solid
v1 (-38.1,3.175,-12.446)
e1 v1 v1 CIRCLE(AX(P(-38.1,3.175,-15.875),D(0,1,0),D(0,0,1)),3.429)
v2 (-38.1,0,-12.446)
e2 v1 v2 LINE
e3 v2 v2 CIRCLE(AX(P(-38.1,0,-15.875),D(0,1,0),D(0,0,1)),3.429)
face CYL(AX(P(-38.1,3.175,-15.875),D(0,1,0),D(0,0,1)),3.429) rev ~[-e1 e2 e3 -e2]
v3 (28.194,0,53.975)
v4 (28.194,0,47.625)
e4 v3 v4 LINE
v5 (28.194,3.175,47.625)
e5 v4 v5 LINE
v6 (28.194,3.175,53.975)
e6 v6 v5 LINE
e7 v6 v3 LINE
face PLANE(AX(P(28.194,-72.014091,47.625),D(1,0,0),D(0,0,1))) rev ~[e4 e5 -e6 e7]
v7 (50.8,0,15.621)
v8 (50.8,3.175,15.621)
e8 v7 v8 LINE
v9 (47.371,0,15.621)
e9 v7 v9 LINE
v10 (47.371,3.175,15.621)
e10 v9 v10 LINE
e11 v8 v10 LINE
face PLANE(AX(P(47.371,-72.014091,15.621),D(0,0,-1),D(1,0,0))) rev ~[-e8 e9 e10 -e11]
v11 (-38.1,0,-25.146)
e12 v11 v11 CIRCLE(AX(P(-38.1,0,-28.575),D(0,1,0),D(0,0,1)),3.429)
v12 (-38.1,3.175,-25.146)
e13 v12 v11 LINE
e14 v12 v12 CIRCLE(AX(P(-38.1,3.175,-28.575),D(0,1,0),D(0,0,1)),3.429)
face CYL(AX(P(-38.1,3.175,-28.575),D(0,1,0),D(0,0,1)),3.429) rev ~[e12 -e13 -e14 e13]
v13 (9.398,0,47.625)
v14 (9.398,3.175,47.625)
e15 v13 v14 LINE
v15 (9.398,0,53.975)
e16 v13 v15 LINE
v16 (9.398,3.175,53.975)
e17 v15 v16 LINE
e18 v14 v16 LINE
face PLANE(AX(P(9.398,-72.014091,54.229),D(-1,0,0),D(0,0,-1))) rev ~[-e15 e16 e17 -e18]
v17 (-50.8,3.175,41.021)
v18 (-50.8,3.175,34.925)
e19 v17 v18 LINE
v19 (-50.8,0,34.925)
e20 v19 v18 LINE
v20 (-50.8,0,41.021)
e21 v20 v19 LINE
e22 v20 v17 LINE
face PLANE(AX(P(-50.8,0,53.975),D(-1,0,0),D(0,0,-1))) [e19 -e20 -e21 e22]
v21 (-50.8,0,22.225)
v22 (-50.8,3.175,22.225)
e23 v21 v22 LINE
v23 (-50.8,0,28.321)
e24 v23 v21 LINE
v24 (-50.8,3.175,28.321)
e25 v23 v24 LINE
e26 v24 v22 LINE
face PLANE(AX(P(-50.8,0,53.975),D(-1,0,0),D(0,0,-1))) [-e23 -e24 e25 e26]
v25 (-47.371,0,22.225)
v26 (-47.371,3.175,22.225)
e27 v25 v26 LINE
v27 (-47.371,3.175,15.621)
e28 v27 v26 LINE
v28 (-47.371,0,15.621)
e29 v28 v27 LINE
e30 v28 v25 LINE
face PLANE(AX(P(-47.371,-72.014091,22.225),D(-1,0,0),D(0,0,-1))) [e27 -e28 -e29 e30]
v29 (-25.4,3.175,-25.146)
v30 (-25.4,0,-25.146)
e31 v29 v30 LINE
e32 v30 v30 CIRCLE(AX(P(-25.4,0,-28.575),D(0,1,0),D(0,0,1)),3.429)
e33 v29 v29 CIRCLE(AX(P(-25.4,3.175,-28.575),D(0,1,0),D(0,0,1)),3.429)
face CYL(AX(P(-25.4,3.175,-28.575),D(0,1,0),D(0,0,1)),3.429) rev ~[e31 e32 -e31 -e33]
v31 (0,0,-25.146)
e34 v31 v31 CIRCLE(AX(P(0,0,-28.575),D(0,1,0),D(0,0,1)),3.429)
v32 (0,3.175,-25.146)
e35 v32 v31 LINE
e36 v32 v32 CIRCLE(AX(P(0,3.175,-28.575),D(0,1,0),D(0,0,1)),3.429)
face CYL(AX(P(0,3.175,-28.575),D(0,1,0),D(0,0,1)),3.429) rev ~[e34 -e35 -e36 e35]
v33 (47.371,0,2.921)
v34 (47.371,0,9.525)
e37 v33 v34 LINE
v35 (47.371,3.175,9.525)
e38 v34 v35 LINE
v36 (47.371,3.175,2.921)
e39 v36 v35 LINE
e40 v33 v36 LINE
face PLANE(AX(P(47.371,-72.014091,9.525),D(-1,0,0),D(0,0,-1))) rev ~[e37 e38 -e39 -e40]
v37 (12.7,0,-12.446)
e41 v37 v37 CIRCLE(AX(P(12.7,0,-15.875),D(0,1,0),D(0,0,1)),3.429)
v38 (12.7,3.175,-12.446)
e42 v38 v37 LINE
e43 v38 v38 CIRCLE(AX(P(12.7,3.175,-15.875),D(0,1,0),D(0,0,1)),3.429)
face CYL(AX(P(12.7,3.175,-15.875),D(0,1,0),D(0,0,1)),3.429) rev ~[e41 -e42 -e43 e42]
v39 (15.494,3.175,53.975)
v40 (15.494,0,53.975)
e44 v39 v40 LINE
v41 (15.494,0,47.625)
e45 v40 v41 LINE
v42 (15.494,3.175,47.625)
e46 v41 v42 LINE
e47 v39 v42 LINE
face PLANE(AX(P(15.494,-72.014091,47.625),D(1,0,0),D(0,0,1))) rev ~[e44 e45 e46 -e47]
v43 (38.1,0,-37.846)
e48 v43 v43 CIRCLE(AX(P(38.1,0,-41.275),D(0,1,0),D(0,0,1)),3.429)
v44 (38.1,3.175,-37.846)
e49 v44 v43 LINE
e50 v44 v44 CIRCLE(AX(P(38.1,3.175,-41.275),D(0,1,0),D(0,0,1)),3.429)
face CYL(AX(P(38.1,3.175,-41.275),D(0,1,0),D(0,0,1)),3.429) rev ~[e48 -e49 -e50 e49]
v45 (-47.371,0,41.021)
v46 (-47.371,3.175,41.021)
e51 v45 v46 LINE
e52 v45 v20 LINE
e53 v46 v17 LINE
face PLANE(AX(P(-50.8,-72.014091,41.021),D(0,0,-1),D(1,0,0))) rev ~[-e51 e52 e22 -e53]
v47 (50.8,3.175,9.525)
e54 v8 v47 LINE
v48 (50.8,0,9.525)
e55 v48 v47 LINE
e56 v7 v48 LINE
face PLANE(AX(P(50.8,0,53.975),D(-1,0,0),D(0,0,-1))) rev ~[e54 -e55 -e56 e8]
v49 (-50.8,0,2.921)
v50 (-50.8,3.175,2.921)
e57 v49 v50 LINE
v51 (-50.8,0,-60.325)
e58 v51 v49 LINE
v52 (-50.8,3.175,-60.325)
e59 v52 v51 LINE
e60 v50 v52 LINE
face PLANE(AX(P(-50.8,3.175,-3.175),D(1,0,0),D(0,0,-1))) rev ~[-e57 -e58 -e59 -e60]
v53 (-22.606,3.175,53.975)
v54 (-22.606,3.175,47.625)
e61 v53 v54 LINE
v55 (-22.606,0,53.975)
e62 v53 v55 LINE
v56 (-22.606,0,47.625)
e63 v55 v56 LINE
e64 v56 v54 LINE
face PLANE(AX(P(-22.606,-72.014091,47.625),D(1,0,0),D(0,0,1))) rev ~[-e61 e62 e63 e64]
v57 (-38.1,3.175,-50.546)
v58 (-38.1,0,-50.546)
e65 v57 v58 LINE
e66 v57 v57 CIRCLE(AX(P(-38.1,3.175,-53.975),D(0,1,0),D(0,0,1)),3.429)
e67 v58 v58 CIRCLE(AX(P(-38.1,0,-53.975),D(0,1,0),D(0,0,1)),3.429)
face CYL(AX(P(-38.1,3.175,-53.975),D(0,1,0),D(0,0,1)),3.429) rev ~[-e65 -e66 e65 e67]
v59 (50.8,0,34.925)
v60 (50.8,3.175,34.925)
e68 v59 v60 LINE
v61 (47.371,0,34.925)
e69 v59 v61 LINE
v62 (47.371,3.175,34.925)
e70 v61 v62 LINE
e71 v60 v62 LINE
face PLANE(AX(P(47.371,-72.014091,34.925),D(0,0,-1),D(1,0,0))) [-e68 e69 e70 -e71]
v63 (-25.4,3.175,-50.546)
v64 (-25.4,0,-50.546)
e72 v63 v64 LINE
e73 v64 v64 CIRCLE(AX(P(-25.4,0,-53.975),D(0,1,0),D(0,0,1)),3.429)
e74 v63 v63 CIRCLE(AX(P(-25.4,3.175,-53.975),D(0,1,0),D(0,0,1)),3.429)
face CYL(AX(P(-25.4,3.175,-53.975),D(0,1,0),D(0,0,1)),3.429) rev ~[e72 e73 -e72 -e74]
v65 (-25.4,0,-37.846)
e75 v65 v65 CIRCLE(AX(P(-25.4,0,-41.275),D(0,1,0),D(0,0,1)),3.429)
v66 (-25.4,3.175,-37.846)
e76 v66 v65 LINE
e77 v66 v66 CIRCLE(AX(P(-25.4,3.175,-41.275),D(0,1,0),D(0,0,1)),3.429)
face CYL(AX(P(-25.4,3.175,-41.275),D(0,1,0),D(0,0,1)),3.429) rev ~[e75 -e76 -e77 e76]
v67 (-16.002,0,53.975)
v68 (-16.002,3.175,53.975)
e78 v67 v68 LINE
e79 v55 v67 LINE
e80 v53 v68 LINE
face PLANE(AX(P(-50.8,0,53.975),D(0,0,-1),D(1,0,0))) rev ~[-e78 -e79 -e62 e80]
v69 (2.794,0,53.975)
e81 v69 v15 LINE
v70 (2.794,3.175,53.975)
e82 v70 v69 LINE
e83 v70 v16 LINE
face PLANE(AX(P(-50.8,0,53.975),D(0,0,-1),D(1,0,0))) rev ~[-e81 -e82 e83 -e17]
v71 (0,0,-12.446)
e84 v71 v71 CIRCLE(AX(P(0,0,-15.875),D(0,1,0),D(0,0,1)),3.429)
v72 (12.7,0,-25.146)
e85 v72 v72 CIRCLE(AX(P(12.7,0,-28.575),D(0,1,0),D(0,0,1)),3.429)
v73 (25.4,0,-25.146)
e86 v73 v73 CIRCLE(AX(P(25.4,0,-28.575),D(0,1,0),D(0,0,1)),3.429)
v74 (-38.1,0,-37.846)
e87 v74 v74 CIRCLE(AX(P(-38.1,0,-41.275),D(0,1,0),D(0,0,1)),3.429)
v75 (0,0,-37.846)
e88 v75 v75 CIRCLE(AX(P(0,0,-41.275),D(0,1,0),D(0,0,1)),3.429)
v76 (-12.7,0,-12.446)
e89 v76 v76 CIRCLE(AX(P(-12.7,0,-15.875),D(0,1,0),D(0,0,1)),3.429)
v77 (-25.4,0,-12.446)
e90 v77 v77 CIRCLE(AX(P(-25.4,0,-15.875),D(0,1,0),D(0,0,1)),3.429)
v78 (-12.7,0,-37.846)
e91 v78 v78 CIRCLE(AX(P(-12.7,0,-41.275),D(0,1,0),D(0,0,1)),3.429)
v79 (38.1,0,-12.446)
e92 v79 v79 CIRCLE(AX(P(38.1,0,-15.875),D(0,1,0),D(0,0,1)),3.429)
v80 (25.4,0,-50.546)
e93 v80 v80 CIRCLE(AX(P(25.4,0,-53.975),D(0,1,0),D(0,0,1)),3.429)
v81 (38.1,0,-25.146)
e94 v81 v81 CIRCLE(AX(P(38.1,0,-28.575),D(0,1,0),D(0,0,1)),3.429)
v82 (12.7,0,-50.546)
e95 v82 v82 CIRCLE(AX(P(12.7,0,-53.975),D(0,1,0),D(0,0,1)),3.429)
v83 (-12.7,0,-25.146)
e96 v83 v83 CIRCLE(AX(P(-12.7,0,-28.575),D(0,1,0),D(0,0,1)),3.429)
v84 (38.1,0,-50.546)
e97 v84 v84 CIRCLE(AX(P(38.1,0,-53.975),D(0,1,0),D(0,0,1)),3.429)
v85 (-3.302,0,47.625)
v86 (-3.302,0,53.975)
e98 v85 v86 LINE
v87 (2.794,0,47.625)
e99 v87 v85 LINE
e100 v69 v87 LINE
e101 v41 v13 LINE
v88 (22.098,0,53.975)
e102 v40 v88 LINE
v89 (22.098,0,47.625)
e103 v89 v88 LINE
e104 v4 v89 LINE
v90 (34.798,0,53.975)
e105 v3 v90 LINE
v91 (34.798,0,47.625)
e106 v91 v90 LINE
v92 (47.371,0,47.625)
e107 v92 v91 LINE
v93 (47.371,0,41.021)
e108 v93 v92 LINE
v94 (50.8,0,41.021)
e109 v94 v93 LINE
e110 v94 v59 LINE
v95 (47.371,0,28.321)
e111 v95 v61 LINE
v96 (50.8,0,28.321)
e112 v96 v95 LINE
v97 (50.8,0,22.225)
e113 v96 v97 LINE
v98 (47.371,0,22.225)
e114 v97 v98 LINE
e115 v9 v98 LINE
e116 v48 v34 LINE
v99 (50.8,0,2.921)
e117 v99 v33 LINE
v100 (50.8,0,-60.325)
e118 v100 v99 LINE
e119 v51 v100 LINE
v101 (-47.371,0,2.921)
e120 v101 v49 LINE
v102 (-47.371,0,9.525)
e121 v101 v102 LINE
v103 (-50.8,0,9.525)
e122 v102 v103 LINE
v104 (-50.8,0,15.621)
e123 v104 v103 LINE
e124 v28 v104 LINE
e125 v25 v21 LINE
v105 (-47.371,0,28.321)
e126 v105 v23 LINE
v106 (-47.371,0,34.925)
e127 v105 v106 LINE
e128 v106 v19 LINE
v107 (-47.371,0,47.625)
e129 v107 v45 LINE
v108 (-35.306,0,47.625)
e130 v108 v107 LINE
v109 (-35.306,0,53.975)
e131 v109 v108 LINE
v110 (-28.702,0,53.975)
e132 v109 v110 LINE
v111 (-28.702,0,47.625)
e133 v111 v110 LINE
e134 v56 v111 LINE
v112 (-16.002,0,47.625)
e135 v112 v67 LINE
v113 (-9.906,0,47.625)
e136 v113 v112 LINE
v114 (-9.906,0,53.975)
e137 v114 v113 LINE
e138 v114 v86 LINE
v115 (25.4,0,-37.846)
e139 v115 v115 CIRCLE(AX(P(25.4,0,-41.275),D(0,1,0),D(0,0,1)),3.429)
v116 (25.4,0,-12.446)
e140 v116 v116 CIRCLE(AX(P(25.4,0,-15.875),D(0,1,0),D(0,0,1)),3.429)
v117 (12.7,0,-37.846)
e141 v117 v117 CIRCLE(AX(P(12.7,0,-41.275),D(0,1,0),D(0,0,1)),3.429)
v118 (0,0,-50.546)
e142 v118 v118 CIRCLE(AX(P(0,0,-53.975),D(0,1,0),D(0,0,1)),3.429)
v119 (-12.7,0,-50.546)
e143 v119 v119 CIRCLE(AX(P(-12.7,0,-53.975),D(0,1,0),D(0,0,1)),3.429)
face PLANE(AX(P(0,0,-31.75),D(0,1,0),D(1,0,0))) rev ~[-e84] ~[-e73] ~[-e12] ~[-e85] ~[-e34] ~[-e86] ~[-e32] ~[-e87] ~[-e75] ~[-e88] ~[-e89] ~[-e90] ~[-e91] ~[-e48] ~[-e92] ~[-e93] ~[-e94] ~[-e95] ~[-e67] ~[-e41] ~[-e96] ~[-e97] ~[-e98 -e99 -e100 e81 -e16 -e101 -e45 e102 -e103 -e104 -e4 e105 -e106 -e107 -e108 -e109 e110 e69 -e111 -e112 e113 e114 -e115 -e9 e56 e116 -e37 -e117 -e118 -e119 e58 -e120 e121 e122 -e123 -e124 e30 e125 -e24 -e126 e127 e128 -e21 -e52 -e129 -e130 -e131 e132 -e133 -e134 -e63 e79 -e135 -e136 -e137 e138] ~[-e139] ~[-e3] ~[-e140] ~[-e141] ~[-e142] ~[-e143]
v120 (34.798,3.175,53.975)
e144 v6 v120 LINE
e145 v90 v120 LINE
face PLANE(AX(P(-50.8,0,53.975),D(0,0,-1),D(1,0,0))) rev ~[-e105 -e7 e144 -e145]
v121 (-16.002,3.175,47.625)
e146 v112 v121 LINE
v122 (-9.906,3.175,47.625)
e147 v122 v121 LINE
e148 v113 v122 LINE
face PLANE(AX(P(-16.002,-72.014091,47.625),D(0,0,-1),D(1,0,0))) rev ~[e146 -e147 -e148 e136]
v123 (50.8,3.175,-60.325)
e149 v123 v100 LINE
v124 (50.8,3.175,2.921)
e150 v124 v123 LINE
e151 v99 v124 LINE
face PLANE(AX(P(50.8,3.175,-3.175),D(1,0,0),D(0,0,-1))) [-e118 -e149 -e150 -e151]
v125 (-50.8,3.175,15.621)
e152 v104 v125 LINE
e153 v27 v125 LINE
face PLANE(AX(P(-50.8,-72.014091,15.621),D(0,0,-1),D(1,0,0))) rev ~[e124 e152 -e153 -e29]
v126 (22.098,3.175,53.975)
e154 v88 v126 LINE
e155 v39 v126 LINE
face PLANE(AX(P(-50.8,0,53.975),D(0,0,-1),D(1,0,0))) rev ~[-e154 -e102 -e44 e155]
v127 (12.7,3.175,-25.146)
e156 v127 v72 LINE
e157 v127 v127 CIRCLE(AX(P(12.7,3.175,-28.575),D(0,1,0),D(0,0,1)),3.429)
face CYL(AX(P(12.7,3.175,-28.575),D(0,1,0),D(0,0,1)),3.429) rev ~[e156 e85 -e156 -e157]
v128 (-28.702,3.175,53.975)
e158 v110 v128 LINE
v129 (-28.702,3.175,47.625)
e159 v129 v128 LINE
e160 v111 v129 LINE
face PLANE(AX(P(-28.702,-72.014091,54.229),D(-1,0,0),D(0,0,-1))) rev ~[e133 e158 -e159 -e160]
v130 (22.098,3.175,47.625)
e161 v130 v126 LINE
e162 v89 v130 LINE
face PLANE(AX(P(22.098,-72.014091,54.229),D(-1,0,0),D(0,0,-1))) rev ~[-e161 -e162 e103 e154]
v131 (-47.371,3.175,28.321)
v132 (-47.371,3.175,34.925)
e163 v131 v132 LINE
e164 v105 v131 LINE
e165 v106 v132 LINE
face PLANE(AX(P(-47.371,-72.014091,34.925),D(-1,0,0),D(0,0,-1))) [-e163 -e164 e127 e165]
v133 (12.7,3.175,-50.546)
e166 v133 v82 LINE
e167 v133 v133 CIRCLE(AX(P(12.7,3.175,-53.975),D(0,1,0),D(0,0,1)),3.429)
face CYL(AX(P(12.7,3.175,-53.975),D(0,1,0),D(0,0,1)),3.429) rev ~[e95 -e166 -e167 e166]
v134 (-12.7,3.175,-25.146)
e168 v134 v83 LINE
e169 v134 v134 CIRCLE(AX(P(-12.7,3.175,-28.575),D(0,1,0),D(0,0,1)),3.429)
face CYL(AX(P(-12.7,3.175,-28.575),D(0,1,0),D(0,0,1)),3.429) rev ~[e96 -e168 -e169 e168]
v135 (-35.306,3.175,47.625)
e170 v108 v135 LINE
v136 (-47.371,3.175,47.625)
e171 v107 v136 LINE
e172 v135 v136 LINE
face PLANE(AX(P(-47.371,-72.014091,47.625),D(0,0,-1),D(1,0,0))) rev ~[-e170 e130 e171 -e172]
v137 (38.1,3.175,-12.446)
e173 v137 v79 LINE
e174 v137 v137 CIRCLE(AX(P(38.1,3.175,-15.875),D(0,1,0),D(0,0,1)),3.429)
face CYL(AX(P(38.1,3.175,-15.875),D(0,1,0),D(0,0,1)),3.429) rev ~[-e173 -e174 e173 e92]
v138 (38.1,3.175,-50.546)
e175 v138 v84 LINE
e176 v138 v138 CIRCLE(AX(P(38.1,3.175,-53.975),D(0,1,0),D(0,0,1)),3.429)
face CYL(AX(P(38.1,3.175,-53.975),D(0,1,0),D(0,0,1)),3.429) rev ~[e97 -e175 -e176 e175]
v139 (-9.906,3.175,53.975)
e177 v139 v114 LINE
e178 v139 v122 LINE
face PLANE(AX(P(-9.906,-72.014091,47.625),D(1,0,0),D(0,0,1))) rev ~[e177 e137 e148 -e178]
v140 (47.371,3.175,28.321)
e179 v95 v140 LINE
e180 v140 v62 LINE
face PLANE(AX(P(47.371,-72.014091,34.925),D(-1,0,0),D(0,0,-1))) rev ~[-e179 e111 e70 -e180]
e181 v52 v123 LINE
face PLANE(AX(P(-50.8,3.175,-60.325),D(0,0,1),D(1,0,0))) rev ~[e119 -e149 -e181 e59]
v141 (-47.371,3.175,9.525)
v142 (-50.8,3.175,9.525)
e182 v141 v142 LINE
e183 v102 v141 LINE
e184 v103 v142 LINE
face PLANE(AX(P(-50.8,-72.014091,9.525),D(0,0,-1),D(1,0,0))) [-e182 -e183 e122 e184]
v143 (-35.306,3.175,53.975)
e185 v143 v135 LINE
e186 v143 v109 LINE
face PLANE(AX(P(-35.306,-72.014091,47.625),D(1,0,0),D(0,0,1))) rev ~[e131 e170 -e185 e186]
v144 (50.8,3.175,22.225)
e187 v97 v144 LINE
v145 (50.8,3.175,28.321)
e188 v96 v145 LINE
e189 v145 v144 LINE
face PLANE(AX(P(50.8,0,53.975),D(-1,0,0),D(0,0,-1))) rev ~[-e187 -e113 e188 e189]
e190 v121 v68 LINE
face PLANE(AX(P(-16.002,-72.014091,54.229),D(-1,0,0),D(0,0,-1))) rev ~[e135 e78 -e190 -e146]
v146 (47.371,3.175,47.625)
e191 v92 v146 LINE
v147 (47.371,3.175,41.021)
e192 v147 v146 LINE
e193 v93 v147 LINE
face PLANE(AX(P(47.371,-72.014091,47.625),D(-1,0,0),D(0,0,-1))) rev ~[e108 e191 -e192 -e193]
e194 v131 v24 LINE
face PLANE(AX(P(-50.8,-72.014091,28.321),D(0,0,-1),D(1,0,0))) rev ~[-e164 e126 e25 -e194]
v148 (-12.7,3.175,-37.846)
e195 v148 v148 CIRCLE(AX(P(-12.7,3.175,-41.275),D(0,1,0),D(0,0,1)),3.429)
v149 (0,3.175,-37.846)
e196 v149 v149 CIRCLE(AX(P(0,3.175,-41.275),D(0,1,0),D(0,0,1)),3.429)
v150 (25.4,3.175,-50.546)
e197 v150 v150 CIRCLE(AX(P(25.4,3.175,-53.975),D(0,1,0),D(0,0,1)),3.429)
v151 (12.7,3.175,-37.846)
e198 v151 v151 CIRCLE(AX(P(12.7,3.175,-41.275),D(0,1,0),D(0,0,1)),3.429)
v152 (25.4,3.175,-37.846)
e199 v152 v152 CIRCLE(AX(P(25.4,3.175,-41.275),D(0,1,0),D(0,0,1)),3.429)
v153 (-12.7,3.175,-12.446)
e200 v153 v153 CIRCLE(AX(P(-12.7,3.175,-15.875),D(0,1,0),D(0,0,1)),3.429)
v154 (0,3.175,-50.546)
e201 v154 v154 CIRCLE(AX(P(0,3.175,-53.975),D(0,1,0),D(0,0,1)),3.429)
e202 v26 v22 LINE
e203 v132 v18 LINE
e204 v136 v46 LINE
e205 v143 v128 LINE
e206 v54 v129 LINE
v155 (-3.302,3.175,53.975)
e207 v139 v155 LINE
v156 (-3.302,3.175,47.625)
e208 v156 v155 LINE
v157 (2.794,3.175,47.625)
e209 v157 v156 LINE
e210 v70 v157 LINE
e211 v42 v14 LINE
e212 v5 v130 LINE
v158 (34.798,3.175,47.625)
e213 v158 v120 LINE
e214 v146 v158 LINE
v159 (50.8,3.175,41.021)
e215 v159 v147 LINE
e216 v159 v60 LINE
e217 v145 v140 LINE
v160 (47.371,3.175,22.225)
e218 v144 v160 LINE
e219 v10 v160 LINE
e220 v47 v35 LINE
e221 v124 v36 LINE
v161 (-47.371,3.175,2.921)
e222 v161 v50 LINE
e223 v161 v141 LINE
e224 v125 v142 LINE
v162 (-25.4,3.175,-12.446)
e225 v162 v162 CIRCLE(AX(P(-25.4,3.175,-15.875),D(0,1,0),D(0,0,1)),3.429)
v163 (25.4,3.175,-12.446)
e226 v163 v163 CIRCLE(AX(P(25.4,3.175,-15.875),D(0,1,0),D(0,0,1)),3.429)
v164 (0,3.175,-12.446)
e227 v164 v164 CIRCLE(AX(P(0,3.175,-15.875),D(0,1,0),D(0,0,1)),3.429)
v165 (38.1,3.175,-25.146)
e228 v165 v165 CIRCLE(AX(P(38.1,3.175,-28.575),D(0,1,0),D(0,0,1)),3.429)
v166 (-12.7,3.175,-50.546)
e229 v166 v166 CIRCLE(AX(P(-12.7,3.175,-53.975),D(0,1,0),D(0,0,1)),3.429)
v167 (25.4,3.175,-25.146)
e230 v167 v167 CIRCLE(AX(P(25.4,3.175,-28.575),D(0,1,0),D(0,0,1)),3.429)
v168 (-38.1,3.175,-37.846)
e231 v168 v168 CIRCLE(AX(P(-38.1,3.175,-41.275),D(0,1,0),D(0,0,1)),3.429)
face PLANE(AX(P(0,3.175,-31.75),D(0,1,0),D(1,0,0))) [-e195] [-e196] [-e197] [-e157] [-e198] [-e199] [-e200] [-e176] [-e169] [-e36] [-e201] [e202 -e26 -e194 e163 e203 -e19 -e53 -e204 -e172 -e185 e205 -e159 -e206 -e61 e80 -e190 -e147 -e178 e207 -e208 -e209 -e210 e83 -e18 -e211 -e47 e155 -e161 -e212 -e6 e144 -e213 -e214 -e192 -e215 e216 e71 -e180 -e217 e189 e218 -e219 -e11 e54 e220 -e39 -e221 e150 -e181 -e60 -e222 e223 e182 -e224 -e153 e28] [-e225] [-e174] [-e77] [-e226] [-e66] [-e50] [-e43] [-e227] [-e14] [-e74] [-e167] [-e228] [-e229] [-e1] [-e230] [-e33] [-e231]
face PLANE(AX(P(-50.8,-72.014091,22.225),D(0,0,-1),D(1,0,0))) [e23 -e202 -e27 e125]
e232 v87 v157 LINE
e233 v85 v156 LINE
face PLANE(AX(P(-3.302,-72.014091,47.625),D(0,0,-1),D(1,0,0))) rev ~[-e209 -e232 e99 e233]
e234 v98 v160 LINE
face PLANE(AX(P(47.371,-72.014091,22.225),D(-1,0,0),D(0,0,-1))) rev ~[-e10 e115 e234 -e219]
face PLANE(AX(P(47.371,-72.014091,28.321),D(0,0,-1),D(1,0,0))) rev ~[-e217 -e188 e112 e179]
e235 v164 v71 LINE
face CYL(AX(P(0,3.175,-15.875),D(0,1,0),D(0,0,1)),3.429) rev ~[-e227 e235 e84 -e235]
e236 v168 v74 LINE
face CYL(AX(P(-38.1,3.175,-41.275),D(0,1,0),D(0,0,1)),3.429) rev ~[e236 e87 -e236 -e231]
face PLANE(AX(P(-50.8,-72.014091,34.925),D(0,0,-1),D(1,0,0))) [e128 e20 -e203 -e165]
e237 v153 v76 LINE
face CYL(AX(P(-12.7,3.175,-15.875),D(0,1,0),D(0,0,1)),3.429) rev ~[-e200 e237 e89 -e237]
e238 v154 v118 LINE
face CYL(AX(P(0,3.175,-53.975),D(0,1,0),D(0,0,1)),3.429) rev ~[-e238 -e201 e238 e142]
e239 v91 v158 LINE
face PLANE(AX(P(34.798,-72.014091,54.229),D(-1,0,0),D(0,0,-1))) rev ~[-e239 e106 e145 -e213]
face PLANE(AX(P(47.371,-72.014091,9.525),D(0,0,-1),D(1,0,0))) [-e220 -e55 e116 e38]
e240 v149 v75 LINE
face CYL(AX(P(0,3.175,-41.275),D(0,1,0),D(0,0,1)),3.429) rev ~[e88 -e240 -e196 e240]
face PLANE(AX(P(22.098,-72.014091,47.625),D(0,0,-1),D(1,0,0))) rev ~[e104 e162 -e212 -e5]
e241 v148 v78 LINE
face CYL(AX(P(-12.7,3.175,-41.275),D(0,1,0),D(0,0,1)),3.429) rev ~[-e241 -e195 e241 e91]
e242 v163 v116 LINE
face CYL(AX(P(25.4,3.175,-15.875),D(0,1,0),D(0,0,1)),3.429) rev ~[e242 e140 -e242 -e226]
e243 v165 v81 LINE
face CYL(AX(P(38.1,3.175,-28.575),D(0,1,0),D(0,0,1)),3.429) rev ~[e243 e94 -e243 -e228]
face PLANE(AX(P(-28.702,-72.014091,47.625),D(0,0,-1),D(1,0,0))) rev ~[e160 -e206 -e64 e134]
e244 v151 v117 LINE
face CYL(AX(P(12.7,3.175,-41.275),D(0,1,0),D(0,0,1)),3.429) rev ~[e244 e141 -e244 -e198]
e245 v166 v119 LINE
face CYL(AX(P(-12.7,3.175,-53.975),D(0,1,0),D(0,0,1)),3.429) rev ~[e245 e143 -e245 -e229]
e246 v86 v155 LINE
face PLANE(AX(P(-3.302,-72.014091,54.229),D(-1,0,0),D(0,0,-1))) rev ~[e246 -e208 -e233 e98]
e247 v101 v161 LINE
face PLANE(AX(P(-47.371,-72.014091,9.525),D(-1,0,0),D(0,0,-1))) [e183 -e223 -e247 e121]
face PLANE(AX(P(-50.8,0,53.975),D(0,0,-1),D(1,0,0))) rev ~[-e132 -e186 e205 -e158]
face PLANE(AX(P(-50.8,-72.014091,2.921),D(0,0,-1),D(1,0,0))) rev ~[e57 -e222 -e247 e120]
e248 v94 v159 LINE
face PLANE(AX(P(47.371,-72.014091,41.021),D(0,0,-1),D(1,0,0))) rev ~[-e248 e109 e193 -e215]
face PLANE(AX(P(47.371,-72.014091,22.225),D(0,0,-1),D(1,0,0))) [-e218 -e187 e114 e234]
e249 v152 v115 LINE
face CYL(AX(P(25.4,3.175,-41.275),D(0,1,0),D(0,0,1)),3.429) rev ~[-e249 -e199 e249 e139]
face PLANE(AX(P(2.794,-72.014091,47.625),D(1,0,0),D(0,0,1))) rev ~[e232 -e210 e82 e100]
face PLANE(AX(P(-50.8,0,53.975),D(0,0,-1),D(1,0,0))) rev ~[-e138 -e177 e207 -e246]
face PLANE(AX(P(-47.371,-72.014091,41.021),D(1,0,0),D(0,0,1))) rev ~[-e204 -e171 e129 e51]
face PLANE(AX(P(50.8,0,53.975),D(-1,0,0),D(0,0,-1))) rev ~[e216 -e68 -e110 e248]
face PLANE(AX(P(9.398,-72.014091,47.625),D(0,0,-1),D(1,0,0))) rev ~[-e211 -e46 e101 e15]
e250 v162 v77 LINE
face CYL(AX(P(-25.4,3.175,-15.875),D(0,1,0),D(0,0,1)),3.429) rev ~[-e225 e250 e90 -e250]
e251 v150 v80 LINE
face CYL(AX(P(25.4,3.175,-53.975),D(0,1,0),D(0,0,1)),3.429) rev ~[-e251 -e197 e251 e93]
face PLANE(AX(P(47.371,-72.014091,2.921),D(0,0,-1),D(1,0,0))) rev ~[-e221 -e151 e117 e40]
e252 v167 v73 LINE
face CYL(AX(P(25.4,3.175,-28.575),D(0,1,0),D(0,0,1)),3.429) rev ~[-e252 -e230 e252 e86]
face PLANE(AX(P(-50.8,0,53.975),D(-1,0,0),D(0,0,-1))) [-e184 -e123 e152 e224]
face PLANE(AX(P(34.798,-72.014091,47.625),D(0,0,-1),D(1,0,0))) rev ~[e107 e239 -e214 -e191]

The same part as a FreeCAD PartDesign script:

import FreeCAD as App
import Part
import Sketcher
Q = App.Units.Quantity


def add_polygon(sketch, points):
    """Adds a closed chain of lines whose ends are joined by coincident constraints."""
    first, n = sketch.GeometryCount, len(points)
    for a, b in zip(points, points[1:] + points[:1]):
        sketch.addGeometry(Part.LineSegment(App.Vector(*a, 0), App.Vector(*b, 0)), False)
    for i in range(n):
        sketch.addConstraint(Sketcher.Constraint("Coincident", first + i, 2, first + (i + 1) % n, 1))

doc = App.newDocument("Part")
params = doc.addObject("Spreadsheet::Sheet", "Params")
for row, (alias, value) in enumerate([
    ("sketch1_width", "4 in"),
    ("sketch1_height", "4.25 in"),
    ("pad1_length", "0.125 in"),
    ("sketch2_width", "4 in"),
    ("sketch2_width2", "0.24 in"),
    ("sketch2_width3", "0.26 in"),
    ("sketch2_width4", "0.475 in"),
    ("sketch2_width5", "0.135 in"),
    ("sketch3_width", "4 in"),
    ("sketch3_height", "2 in"),
    ("sketch4_diameter", "0.27 in"),
    ("sketch4_width", "4 in"),
    ("sketch4_height", "2.25 in"),
    ("pad2_length", "0.125 in"),
], start=1):
    params.set(f"A{row}", alias)
    params.set(f"B{row}", "=" + value)
    params.setAlias(f"B{row}", alias)

body = doc.addObject("PartDesign::Body", "Body")

sketch1 = doc.addObject("Sketcher::SketchObject", "Sketch")
body.addObject(sketch1)
sketch1.AttachmentSupport = (doc.XZ_Plane, [""])
sketch1.MapMode = "FlatFace"
add_polygon(sketch1, [(-51, -54), (-51, 54), (51, 54), (51, -54)])
sketch1.addConstraint([
    Sketcher.Constraint("Vertical", 0),
    Sketcher.Constraint("Horizontal", 1),
    Sketcher.Constraint("Vertical", 2),
    Sketcher.Constraint("Horizontal", 3),
    Sketcher.Constraint("Symmetric", 0, 2, 2, 2, -1, 1),
    Sketcher.Constraint("DistanceX", 1, 1, 1, 2, Q("4 in")),
    Sketcher.Constraint("DistanceY", 0, 1, 0, 2, Q("4.25 in")),
])
sketch1.setExpression("Constraints[9]", "Params.sketch1_width")
sketch1.setExpression("Constraints[10]", "Params.sketch1_height")
pad1 = doc.addObject("PartDesign::Pad", "Pad")
body.addObject(pad1)
pad1.Profile = sketch1
pad1.setExpression("Length", "Params.pad1_length")
pad1.Reversed = True

sketch2 = doc.addObject("Sketcher::SketchObject", "Sketch001")
body.addObject(sketch2)
sketch2.AttachmentSupport = (doc.XZ_Plane, [""])
sketch2.MapMode = "FlatFace"
sketch2.AttachmentOffset = App.Placement(App.Vector(0, 0, -0.125 * 25.4), App.Rotation())
add_polygon(sketch2, [(28.2, 47.6), (22.1, 47.6), (22.1, 54.2), (15.5, 54.2), (15.5, 47.6), (9.4, 47.6), (9.4, 54.2), (2.8, 54.2), (2.8, 47.6), (-3.3, 47.6), (-3.3, 54.2), (-9.9, 54.2), (-9.9, 47.6), (-16, 47.6), (-16, 54.2), (-22.6, 54.2), (-22.6, 47.6), (-28.7, 47.6), (-28.7, 54.2), (-35.3, 54.2), (-35.3, 47.6), (-47.4, 47.6), (-47.4, 41), (-50.8, 41), (-50.8, 92.5), (50.8, 92.5), (50.8, 41), (47.4, 41), (47.4, 47.6), (34.8, 47.6), (34.8, 54.2), (28.2, 54.2)])
add_polygon(sketch2, [(-50.8, -35.1), (-50.8, -28.4), (-47.4, -28.4), (-47.4, -35.1)])
add_polygon(sketch2, [(-50.8, -22.5), (-50.8, -15.9), (-47.4, -15.9), (-47.4, -22.5)])
add_polygon(sketch2, [(-50.8, -9.8), (-50.8, -3.2), (-47.4, -3.2), (-47.4, -9.8)])
add_polygon(sketch2, [(-50.8, 2.9), (-50.8, 9.5), (-47.4, 9.5), (-47.4, 2.9)])
add_polygon(sketch2, [(-50.8, 15.6), (-50.8, 22.2), (-47.4, 22.2), (-47.4, 15.6)])
add_polygon(sketch2, [(-50.8, 28.3), (-50.8, 34.9), (-47.4, 34.9), (-47.4, 28.3)])
add_polygon(sketch2, [(47.4, 28.3), (47.4, 34.9), (50.8, 34.9), (50.8, 28.3)])
add_polygon(sketch2, [(47.4, 15.6), (47.4, 22.2), (50.8, 22.2), (50.8, 15.6)])
add_polygon(sketch2, [(47.4, 2.9), (47.4, 9.5), (50.8, 9.5), (50.8, 2.9)])
add_polygon(sketch2, [(47.4, -9.8), (47.4, -3.2), (50.8, -3.2), (50.8, -9.8)])
add_polygon(sketch2, [(47.4, -22.5), (47.4, -15.9), (50.8, -15.9), (50.8, -22.5)])
add_polygon(sketch2, [(47.4, -35.1), (47.4, -28.4), (50.8, -28.4), (50.8, -35.1)])
add_polygon(sketch2, [(47.4, -47.8), (47.4, -41.1), (50.8, -41.1), (50.8, -47.8)])
add_polygon(sketch2, [(-50.8, -47.8), (-50.8, -41.1), (-47.4, -41.1), (-47.4, -47.8)])
sketch2.addConstraint([
    Sketcher.Constraint("Horizontal", 0),
    Sketcher.Constraint("Vertical", 1),
    Sketcher.Constraint("Horizontal", 2),
    Sketcher.Constraint("Vertical", 3),
    Sketcher.Constraint("Horizontal", 4),
    Sketcher.Constraint("Vertical", 5),
    Sketcher.Constraint("Horizontal", 6),
    Sketcher.Constraint("Vertical", 7),
    Sketcher.Constraint("Horizontal", 8),
    Sketcher.Constraint("Vertical", 9),
    Sketcher.Constraint("Horizontal", 10),
    Sketcher.Constraint("Vertical", 11),
    Sketcher.Constraint("Horizontal", 12),
    Sketcher.Constraint("Vertical", 13),
    Sketcher.Constraint("Horizontal", 14),
    Sketcher.Constraint("Vertical", 15),
    Sketcher.Constraint("Horizontal", 16),
    Sketcher.Constraint("Vertical", 17),
    Sketcher.Constraint("Horizontal", 18),
    Sketcher.Constraint("Vertical", 19),
    Sketcher.Constraint("Horizontal", 20),
    Sketcher.Constraint("Vertical", 21),
    Sketcher.Constraint("Horizontal", 22),
    Sketcher.Constraint("Vertical", 23),
    Sketcher.Constraint("Horizontal", 24),
    Sketcher.Constraint("Vertical", 25),
    Sketcher.Constraint("Horizontal", 26),
    Sketcher.Constraint("Vertical", 27),
    Sketcher.Constraint("Horizontal", 28),
    Sketcher.Constraint("Vertical", 29),
    Sketcher.Constraint("Horizontal", 30),
    Sketcher.Constraint("Vertical", 31),
    Sketcher.Constraint("Vertical", 32),
    Sketcher.Constraint("Horizontal", 33),
    Sketcher.Constraint("Vertical", 34),
    Sketcher.Constraint("Horizontal", 35),
    Sketcher.Constraint("Vertical", 36),
    Sketcher.Constraint("Horizontal", 37),
    Sketcher.Constraint("Vertical", 38),
    Sketcher.Constraint("Horizontal", 39),
    Sketcher.Constraint("Vertical", 40),
    Sketcher.Constraint("Horizontal", 41),
    Sketcher.Constraint("Vertical", 42),
    Sketcher.Constraint("Horizontal", 43),
    Sketcher.Constraint("Vertical", 44),
    Sketcher.Constraint("Horizontal", 45),
    Sketcher.Constraint("Vertical", 46),
    Sketcher.Constraint("Horizontal", 47),
    Sketcher.Constraint("Vertical", 48),
    Sketcher.Constraint("Horizontal", 49),
    Sketcher.Constraint("Vertical", 50),
    Sketcher.Constraint("Horizontal", 51),
    Sketcher.Constraint("Vertical", 52),
    Sketcher.Constraint("Horizontal", 53),
    Sketcher.Constraint("Vertical", 54),
    Sketcher.Constraint("Horizontal", 55),
    Sketcher.Constraint("Vertical", 56),
    Sketcher.Constraint("Horizontal", 57),
    Sketcher.Constraint("Vertical", 58),
    Sketcher.Constraint("Horizontal", 59),
    Sketcher.Constraint("Vertical", 60),
    Sketcher.Constraint("Horizontal", 61),
    Sketcher.Constraint("Vertical", 62),
    Sketcher.Constraint("Horizontal", 63),
    Sketcher.Constraint("Vertical", 64),
    Sketcher.Constraint("Horizontal", 65),
    Sketcher.Constraint("Vertical", 66),
    Sketcher.Constraint("Horizontal", 67),
    Sketcher.Constraint("Vertical", 68),
    Sketcher.Constraint("Horizontal", 69),
    Sketcher.Constraint("Vertical", 70),
    Sketcher.Constraint("Horizontal", 71),
    Sketcher.Constraint("Vertical", 72),
    Sketcher.Constraint("Horizontal", 73),
    Sketcher.Constraint("Vertical", 74),
    Sketcher.Constraint("Horizontal", 75),
    Sketcher.Constraint("Vertical", 76),
    Sketcher.Constraint("Horizontal", 77),
    Sketcher.Constraint("Vertical", 78),
    Sketcher.Constraint("Horizontal", 79),
    Sketcher.Constraint("Vertical", 80),
    Sketcher.Constraint("Horizontal", 81),
    Sketcher.Constraint("Vertical", 82),
    Sketcher.Constraint("Horizontal", 83),
    Sketcher.Constraint("Vertical", 84),
    Sketcher.Constraint("Horizontal", 85),
    Sketcher.Constraint("Vertical", 86),
    Sketcher.Constraint("Horizontal", 87),
    Sketcher.Constraint("Symmetric", 22, 2, 25, 2, -2),
    Sketcher.Constraint("Symmetric", 20, 2, 27, 2, -2),
    Sketcher.Constraint("Symmetric", 53, 2, 56, 2, -2),
    Sketcher.Constraint("Symmetric", 55, 2, 58, 2, -2),
    Sketcher.Constraint("Symmetric", 49, 2, 60, 2, -2),
    Sketcher.Constraint("Symmetric", 51, 2, 62, 2, -2),
    Sketcher.Constraint("Symmetric", 45, 2, 64, 2, -2),
    Sketcher.Constraint("Symmetric", 47, 2, 66, 2, -2),
    Sketcher.Constraint("Symmetric", 41, 2, 68, 2, -2),
    Sketcher.Constraint("Symmetric", 43, 2, 70, 2, -2),
    Sketcher.Constraint("Symmetric", 37, 2, 72, 2, -2),
    Sketcher.Constraint("Symmetric", 39, 2, 74, 2, -2),
    Sketcher.Constraint("Symmetric", 33, 2, 76, 2, -2),
    Sketcher.Constraint("Symmetric", 35, 2, 78, 2, -2),
    Sketcher.Constraint("Symmetric", 81, 2, 84, 2, -2),
    Sketcher.Constraint("Symmetric", 83, 2, 86, 2, -2),
    Sketcher.Constraint("Horizontal", 0, 2, 3, 2),
    Sketcher.Constraint("Horizontal", 2, 2, 5, 2),
    Sketcher.Constraint("Horizontal", 4, 2, 7, 2),
    Sketcher.Constraint("Horizontal", 6, 2, 9, 2),
    Sketcher.Constraint("Horizontal", 8, 2, 11, 2),
    Sketcher.Constraint("Horizontal", 10, 2, 13, 2),
    Sketcher.Constraint("Horizontal", 12, 2, 15, 2),
    Sketcher.Constraint("Horizontal", 14, 2, 17, 2),
    Sketcher.Constraint("Horizontal", 16, 2, 19, 2),
    Sketcher.Constraint("Horizontal", 18, 2, 29, 2),
    Sketcher.Constraint("Vertical", 23, 2, 32, 2),
    Sketcher.Constraint("Vertical", 21, 2, 33, 2),
    Sketcher.Constraint("Vertical", 35, 2, 36, 2),
    Sketcher.Constraint("Vertical", 34, 2, 37, 2),
    Sketcher.Constraint("Vertical", 39, 2, 40, 2),
    Sketcher.Constraint("Vertical", 38, 2, 41, 2),
    Sketcher.Constraint("Vertical", 43, 2, 44, 2),
    Sketcher.Constraint("Vertical", 42, 2, 45, 2),
    Sketcher.Constraint("Vertical", 47, 2, 48, 2),
    Sketcher.Constraint("Vertical", 46, 2, 49, 2),
    Sketcher.Constraint("Vertical", 51, 2, 52, 2),
    Sketcher.Constraint("Vertical", 50, 2, 53, 2),
    Sketcher.Constraint("Vertical", 79, 2, 80, 2),
    Sketcher.Constraint("Vertical", 78, 2, 81, 2),
    Sketcher.Constraint("Equal", 0, 4),
    Sketcher.Constraint("Equal", 2, 6),
    Sketcher.Constraint("Equal", 4, 8),
    Sketcher.Constraint("Equal", 6, 10),
    Sketcher.Constraint("Equal", 8, 12),
    Sketcher.Constraint("Equal", 10, 14),
    Sketcher.Constraint("Equal", 12, 16),
    Sketcher.Constraint("Equal", 14, 18),
    Sketcher.Constraint("Equal", 18, 30),
    Sketcher.Constraint("Equal", 30, 1),
    Sketcher.Constraint("Equal", 19, 21),
    Sketcher.Constraint("Equal", 31, 32),
    Sketcher.Constraint("Equal", 34, 36),
    Sketcher.Constraint("Equal", 38, 40),
    Sketcher.Constraint("Equal", 42, 44),
    Sketcher.Constraint("Equal", 46, 48),
    Sketcher.Constraint("Equal", 50, 52),
    Sketcher.Constraint("Equal", 78, 80),
    Sketcher.Constraint("DistanceX", 24, 1, 24, 2, Q("4 in")),
    Sketcher.Constraint("DistanceX", 0, 2, 0, 1, Q("0.24 in")),
    Sketcher.Constraint("DistanceX", 2, 2, 2, 1, Q("0.26 in")),
    Sketcher.Constraint("DistanceX", 20, 2, 20, 1, Q("0.475 in")),
    Sketcher.Constraint("DistanceX", 22, 2, 22, 1, Q("0.135 in")),
    Sketcher.Constraint("DistanceY", 32, 2, -1, 1, Q("1.12 in")),
    Sketcher.Constraint("DistanceY", 80, 2, -1, 1, Q("1.62 in")),
    Sketcher.Constraint("DistanceY", -1, 1, 0, 2, Q("1.875 in")),
    Sketcher.Constraint("DistanceY", 36, 2, -1, 1, Q("0.625 in")),
    Sketcher.Constraint("DistanceY", 40, 2, -1, 1, Q("0.125 in")),
    Sketcher.Constraint("DistanceY", -1, 1, 44, 2, Q("0.375 in")),
    Sketcher.Constraint("DistanceY", -1, 1, 48, 2, Q("0.875 in")),
    Sketcher.Constraint("DistanceY", -1, 1, 52, 2, Q("1.375 in")),
    Sketcher.Constraint("DistanceY", 23, 1, 23, 2, Q("51.523961 mm")),
])
sketch2.setExpression("Constraints[234]", "Params.sketch2_width")
sketch2.setExpression("Constraints[235]", "Params.sketch2_width2")
sketch2.setExpression("Constraints[236]", "Params.sketch2_width3")
sketch2.setExpression("Constraints[237]", "Params.sketch2_width4")
sketch2.setExpression("Constraints[238]", "Params.sketch2_width5")
pocket1 = doc.addObject("PartDesign::Pocket", "Pocket")
body.addObject(pocket1)
pocket1.Profile = sketch2
pocket1.Type = "ThroughAll"
pocket1.Midplane = True

sketch3 = doc.addObject("Sketcher::SketchObject", "Sketch002")
body.addObject(sketch3)
sketch3.AttachmentSupport = (doc.XZ_Plane, [""])
sketch3.MapMode = "FlatFace"
sketch3.AttachmentOffset = App.Placement(App.Vector(0, 0, -0.125 * 25.4), App.Rotation())
add_polygon(sketch3, [(-51, -54), (-51, -3), (51, -3), (51, -54)])
sketch3.addConstraint([
    Sketcher.Constraint("Vertical", 0),
    Sketcher.Constraint("Horizontal", 1),
    Sketcher.Constraint("Vertical", 2),
    Sketcher.Constraint("Horizontal", 3),
    Sketcher.Constraint("DistanceX", 1, 1, 1, 2, Q("4 in")),
    Sketcher.Constraint("DistanceY", 0, 1, 0, 2, Q("2 in")),
    Sketcher.Constraint("DistanceX", 0, 2, -1, 1, Q("2 in")),
    Sketcher.Constraint("DistanceY", 0, 2, -1, 1, Q("0.125 in")),
])
sketch3.setExpression("Constraints[8]", "Params.sketch3_width")
sketch3.setExpression("Constraints[9]", "Params.sketch3_height")
pocket2 = doc.addObject("PartDesign::Pocket", "Pocket001")
body.addObject(pocket2)
pocket2.Profile = sketch3
pocket2.Type = "ThroughAll"
pocket2.Reversed = True

sketch4 = doc.addObject("Sketcher::SketchObject", "Sketch003")
body.addObject(sketch4)
sketch4.AttachmentSupport = (doc.XZ_Plane, [""])
sketch4.MapMode = "FlatFace"
sketch4.AttachmentOffset = App.Placement(App.Vector(0, 0, -0.125 * 25.4), App.Rotation())
add_polygon(sketch4, [(-50.8, -60.3), (-50.8, -3.2), (50.8, -3.2), (50.8, -60.3)])
sketch4.addGeometry(Part.Circle(App.Vector(-38.1, -15.9, 0), App.Vector(0, 0, 1), 3.4), False)
sketch4.addGeometry(Part.Circle(App.Vector(-25.4, -15.9, 0), App.Vector(0, 0, 1), 3.4), False)
sketch4.addGeometry(Part.Circle(App.Vector(-12.7, -15.9, 0), App.Vector(0, 0, 1), 3.4), False)
sketch4.addGeometry(Part.Circle(App.Vector(0, -15.9, 0), App.Vector(0, 0, 1), 3.4), False)
sketch4.addGeometry(Part.Circle(App.Vector(-38.1, -28.6, 0), App.Vector(0, 0, 1), 3.4), False)
sketch4.addGeometry(Part.Circle(App.Vector(-25.4, -28.6, 0), App.Vector(0, 0, 1), 3.4), False)
sketch4.addGeometry(Part.Circle(App.Vector(-12.7, -28.6, 0), App.Vector(0, 0, 1), 3.4), False)
sketch4.addGeometry(Part.Circle(App.Vector(0, -28.6, 0), App.Vector(0, 0, 1), 3.4), False)
sketch4.addGeometry(Part.Circle(App.Vector(12.7, -15.9, 0), App.Vector(0, 0, 1), 3.4), False)
sketch4.addGeometry(Part.Circle(App.Vector(25.4, -15.9, 0), App.Vector(0, 0, 1), 3.4), False)
sketch4.addGeometry(Part.Circle(App.Vector(38.1, -15.9, 0), App.Vector(0, 0, 1), 3.4), False)
sketch4.addGeometry(Part.Circle(App.Vector(12.7, -28.6, 0), App.Vector(0, 0, 1), 3.4), False)
sketch4.addGeometry(Part.Circle(App.Vector(25.4, -28.6, 0), App.Vector(0, 0, 1), 3.4), False)
sketch4.addGeometry(Part.Circle(App.Vector(38.1, -28.6, 0), App.Vector(0, 0, 1), 3.4), False)
sketch4.addGeometry(Part.Circle(App.Vector(-38.1, -41.3, 0), App.Vector(0, 0, 1), 3.4), False)
sketch4.addGeometry(Part.Circle(App.Vector(-25.4, -41.3, 0), App.Vector(0, 0, 1), 3.4), False)
sketch4.addGeometry(Part.Circle(App.Vector(-12.7, -41.3, 0), App.Vector(0, 0, 1), 3.4), False)
sketch4.addGeometry(Part.Circle(App.Vector(0, -41.3, 0), App.Vector(0, 0, 1), 3.4), False)
sketch4.addGeometry(Part.Circle(App.Vector(-38.1, -54, 0), App.Vector(0, 0, 1), 3.4), False)
sketch4.addGeometry(Part.Circle(App.Vector(-25.4, -54, 0), App.Vector(0, 0, 1), 3.4), False)
sketch4.addGeometry(Part.Circle(App.Vector(-12.7, -54, 0), App.Vector(0, 0, 1), 3.4), False)
sketch4.addGeometry(Part.Circle(App.Vector(0, -54, 0), App.Vector(0, 0, 1), 3.4), False)
sketch4.addGeometry(Part.Circle(App.Vector(12.7, -41.3, 0), App.Vector(0, 0, 1), 3.4), False)
sketch4.addGeometry(Part.Circle(App.Vector(25.4, -41.3, 0), App.Vector(0, 0, 1), 3.4), False)
sketch4.addGeometry(Part.Circle(App.Vector(38.1, -41.3, 0), App.Vector(0, 0, 1), 3.4), False)
sketch4.addGeometry(Part.Circle(App.Vector(12.7, -54, 0), App.Vector(0, 0, 1), 3.4), False)
sketch4.addGeometry(Part.Circle(App.Vector(25.4, -54, 0), App.Vector(0, 0, 1), 3.4), False)
sketch4.addGeometry(Part.Circle(App.Vector(38.1, -54, 0), App.Vector(0, 0, 1), 3.4), False)
sketch4.addConstraint([
    Sketcher.Constraint("Vertical", 0),
    Sketcher.Constraint("Horizontal", 1),
    Sketcher.Constraint("Vertical", 2),
    Sketcher.Constraint("Horizontal", 3),
    Sketcher.Constraint("Equal", 4, 5),
    Sketcher.Constraint("Equal", 5, 6),
    Sketcher.Constraint("Equal", 6, 7),
    Sketcher.Constraint("Equal", 7, 8),
    Sketcher.Constraint("Equal", 8, 9),
    Sketcher.Constraint("Equal", 9, 10),
    Sketcher.Constraint("Equal", 10, 11),
    Sketcher.Constraint("Equal", 11, 12),
    Sketcher.Constraint("Equal", 12, 13),
    Sketcher.Constraint("Equal", 13, 14),
    Sketcher.Constraint("Equal", 14, 15),
    Sketcher.Constraint("Equal", 15, 16),
    Sketcher.Constraint("Equal", 16, 17),
    Sketcher.Constraint("Equal", 17, 18),
    Sketcher.Constraint("Equal", 18, 19),
    Sketcher.Constraint("Equal", 19, 20),
    Sketcher.Constraint("Equal", 20, 21),
    Sketcher.Constraint("Equal", 21, 22),
    Sketcher.Constraint("Equal", 22, 23),
    Sketcher.Constraint("Equal", 23, 24),
    Sketcher.Constraint("Equal", 24, 25),
    Sketcher.Constraint("Equal", 25, 26),
    Sketcher.Constraint("Equal", 26, 27),
    Sketcher.Constraint("Equal", 27, 28),
    Sketcher.Constraint("Equal", 28, 29),
    Sketcher.Constraint("Equal", 29, 30),
    Sketcher.Constraint("Equal", 30, 31),
    Sketcher.Constraint("Symmetric", 6, 3, 12, 3, -2),
    Sketcher.Constraint("Symmetric", 5, 3, 13, 3, -2),
    Sketcher.Constraint("Symmetric", 4, 3, 14, 3, -2),
    Sketcher.Constraint("Symmetric", 10, 3, 15, 3, -2),
    Sketcher.Constraint("Symmetric", 9, 3, 16, 3, -2),
    Sketcher.Constraint("Symmetric", 8, 3, 17, 3, -2),
    Sketcher.Constraint("Symmetric", 20, 3, 26, 3, -2),
    Sketcher.Constraint("Symmetric", 19, 3, 27, 3, -2),
    Sketcher.Constraint("Symmetric", 18, 3, 28, 3, -2),
    Sketcher.Constraint("Symmetric", 24, 3, 29, 3, -2),
    Sketcher.Constraint("Symmetric", 23, 3, 30, 3, -2),
    Sketcher.Constraint("Symmetric", 22, 3, 31, 3, -2),
    Sketcher.Constraint("PointOnObject", 7, 3, -2),
    Sketcher.Constraint("PointOnObject", 11, 3, -2),
    Sketcher.Constraint("PointOnObject", 21, 3, -2),
    Sketcher.Constraint("PointOnObject", 25, 3, -2),
    Sketcher.Constraint("Horizontal", 4, 3, 5, 3),
    Sketcher.Constraint("Horizontal", 5, 3, 6, 3),
    Sketcher.Constraint("Horizontal", 6, 3, 7, 3),
    Sketcher.Constraint("Horizontal", 8, 3, 9, 3),
    Sketcher.Constraint("Horizontal", 9, 3, 10, 3),
    Sketcher.Constraint("Horizontal", 10, 3, 11, 3),
    Sketcher.Constraint("Horizontal", 18, 3, 19, 3),
    Sketcher.Constraint("Horizontal", 19, 3, 20, 3),
    Sketcher.Constraint("Horizontal", 20, 3, 21, 3),
    Sketcher.Constraint("Horizontal", 22, 3, 23, 3),
    Sketcher.Constraint("Horizontal", 23, 3, 24, 3),
    Sketcher.Constraint("Horizontal", 24, 3, 25, 3),
    Sketcher.Constraint("Vertical", 4, 3, 8, 3),
    Sketcher.Constraint("Vertical", 5, 3, 9, 3),
    Sketcher.Constraint("Vertical", 6, 3, 10, 3),
    Sketcher.Constraint("Vertical", 8, 3, 18, 3),
    Sketcher.Constraint("Vertical", 9, 3, 19, 3),
    Sketcher.Constraint("Vertical", 10, 3, 20, 3),
    Sketcher.Constraint("Vertical", 18, 3, 22, 3),
    Sketcher.Constraint("Vertical", 19, 3, 23, 3),
    Sketcher.Constraint("Vertical", 20, 3, 24, 3),
    Sketcher.Constraint("Diameter", 4, Q("0.27 in")),
    Sketcher.Constraint("DistanceX", 1, 1, 1, 2, Q("4 in")),
    Sketcher.Constraint("DistanceX", 5, 3, -1, 1, Q("1 in")),
    Sketcher.Constraint("DistanceX", 0, 2, -1, 1, Q("2 in")),
    Sketcher.Constraint("DistanceX", 4, 3, 6, 3, Q("1 in")),
    Sketcher.Constraint("DistanceX", 6, 3, 12, 3, Q("1 in")),
    Sketcher.Constraint("DistanceY", 18, 3, 4, 3, Q("1 in")),
    Sketcher.Constraint("DistanceY", 22, 3, 8, 3, Q("1 in")),
    Sketcher.Constraint("DistanceY", 8, 3, 0, 2, Q("1 in")),
    Sketcher.Constraint("DistanceY", 0, 1, 0, 2, Q("2.25 in")),
    Sketcher.Constraint("DistanceY", 8, 3, 4, 3, Q("0.5 in")),
    Sketcher.Constraint("DistanceY", 4, 3, -1, 1, Q("0.625 in")),
])
sketch4.setExpression("Constraints[72]", "Params.sketch4_diameter")
sketch4.setExpression("Constraints[73]", "Params.sketch4_width")
sketch4.setExpression("Constraints[81]", "Params.sketch4_height")
pad2 = doc.addObject("PartDesign::Pad", "Pad001")
body.addObject(pad2)
pad2.Profile = sketch4
pad2.setExpression("Length", "Params.pad2_length")

doc.recompute()
